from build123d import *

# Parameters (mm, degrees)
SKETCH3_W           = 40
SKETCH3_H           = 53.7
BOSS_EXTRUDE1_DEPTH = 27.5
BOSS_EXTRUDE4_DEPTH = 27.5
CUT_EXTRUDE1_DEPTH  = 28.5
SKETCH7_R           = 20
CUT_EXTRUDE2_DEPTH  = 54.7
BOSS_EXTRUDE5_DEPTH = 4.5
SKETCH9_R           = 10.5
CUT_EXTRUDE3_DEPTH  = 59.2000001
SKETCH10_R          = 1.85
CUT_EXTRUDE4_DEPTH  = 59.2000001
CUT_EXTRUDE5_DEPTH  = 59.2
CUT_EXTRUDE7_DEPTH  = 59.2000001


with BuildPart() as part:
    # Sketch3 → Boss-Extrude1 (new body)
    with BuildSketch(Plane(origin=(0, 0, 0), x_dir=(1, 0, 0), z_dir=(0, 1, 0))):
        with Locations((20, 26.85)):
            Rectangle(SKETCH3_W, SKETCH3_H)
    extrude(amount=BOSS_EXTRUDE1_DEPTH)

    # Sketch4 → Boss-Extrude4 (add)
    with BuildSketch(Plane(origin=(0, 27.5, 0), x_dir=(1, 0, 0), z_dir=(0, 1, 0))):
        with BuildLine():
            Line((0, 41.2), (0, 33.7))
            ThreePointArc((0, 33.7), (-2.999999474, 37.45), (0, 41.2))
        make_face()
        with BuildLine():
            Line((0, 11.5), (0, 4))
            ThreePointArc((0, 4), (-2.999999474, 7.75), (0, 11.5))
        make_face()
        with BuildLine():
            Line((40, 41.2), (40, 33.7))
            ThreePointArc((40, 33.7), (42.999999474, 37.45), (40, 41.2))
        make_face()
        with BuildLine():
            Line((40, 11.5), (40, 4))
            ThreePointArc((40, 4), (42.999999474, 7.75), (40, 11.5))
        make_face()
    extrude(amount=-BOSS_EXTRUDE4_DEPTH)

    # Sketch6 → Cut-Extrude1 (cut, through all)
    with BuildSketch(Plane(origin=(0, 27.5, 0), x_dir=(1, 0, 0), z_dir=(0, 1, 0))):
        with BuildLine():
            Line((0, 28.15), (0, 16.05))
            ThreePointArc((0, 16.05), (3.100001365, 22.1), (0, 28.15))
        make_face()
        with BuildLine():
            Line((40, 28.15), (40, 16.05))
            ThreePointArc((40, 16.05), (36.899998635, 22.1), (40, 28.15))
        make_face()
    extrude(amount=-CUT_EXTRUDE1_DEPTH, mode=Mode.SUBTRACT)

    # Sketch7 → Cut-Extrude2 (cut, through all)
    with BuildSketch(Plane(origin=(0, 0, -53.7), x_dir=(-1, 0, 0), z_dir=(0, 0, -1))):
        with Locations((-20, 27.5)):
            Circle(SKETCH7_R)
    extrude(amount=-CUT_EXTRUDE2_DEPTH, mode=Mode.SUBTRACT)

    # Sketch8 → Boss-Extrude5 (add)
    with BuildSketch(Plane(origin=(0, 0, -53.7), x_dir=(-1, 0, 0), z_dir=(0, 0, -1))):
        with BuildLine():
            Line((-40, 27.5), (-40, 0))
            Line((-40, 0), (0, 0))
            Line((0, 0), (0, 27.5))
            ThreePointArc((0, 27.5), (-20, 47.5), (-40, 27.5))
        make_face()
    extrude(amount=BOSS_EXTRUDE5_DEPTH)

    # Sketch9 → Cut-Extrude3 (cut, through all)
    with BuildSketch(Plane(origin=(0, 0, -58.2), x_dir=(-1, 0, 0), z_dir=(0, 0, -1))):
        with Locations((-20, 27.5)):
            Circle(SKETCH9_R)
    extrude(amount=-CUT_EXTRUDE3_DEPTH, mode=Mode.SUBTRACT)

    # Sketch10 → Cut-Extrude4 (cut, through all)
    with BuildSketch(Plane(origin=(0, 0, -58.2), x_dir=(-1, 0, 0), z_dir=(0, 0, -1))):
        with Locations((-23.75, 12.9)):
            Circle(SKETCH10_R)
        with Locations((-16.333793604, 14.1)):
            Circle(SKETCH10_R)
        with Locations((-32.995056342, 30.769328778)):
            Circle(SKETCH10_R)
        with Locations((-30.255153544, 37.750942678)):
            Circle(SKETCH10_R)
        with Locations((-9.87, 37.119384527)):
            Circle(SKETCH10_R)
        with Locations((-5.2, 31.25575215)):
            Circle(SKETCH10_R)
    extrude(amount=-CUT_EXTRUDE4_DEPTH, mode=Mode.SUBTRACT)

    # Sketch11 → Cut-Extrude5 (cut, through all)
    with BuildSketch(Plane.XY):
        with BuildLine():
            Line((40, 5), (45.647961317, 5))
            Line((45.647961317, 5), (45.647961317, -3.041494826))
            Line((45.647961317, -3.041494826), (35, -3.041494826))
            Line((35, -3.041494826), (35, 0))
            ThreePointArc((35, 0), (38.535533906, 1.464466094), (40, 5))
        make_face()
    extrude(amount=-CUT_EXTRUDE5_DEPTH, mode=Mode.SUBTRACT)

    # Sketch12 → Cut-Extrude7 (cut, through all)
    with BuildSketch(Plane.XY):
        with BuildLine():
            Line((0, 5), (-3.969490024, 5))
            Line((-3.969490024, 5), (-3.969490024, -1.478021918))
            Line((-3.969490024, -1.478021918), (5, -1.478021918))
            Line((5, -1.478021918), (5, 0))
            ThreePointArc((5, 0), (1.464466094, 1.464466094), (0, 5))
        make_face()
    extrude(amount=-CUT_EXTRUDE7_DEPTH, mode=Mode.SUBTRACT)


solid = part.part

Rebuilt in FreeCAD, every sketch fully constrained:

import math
import FreeCAD as App
import Part
import Sketcher

V = App.Vector


def add_polygon(sketch, points):
    """Adds a closed chain of lines whose ends are joined by coincident constraints."""
    first, n = sketch.GeometryCount, len(points)
    for a, b in zip(points, points[1:] + points[:1]):
        sketch.addGeometry(Part.LineSegment(App.Vector(*a, 0), App.Vector(*b, 0)), False)
    for i in range(n):
        sketch.addConstraint(Sketcher.Constraint("Coincident", first + i, 2, first + (i + 1) % n, 1))

doc = App.newDocument("Part")
body = doc.addObject("PartDesign::Body", "Body")

sketch1 = doc.addObject("Sketcher::SketchObject", "Sketch")
body.addObject(sketch1)
sketch1.AttachmentSupport = (doc.XZ_Plane, [""])
sketch1.MapMode = "FlatFace"
add_polygon(sketch1, [(0, -54), (0, 0), (40, 0), (40, -54)])
sketch1.addConstraint([
    Sketcher.Constraint("Vertical", 0),
    Sketcher.Constraint("Horizontal", 1),
    Sketcher.Constraint("Vertical", 2),
    Sketcher.Constraint("Horizontal", 3),
    Sketcher.Constraint("Coincident", 0, 2, -1, 1),
    Sketcher.Constraint("DistanceX", 1, 1, 1, 2, 40.0),
    Sketcher.Constraint("DistanceY", 0, 1, 0, 2, 53.7),
])
pad1 = doc.addObject("PartDesign::Pad", "Pad")
body.addObject(pad1)
pad1.Profile = sketch1
pad1.Length = 27.5
pad1.Reversed = True

sketch2 = doc.addObject("Sketcher::SketchObject", "Sketch001")
body.addObject(sketch2)
sketch2.AttachmentSupport = (doc.XZ_Plane, [""])
sketch2.MapMode = "FlatFace"
sketch2.AttachmentOffset = App.Placement(V(0, 0, -27.5), App.Rotation())
sketch2.addGeometry([
    Part.LineSegment(V(0, -33.7, 0), V(0, -41.2, 0)),
    Part.ArcOfCircle(Part.Circle(V(0.8, -37.5, 0), V(0, 0, 1), 3.8), math.radians(103), math.radians(257)),
    Part.LineSegment(V(0, -4, 0), V(0, -11.5, 0)),
    Part.ArcOfCircle(Part.Circle(V(0.8, -7.8, 0), V(0, 0, 1), 3.8), math.radians(103), math.radians(257)),
    Part.LineSegment(V(40, -41.2, 0), V(40, -33.7, 0)),
    Part.ArcOfCircle(Part.Circle(V(39.2, -37.5, 0), V(0, 0, 1), 3.8), math.radians(-77), math.radians(77)),
    Part.LineSegment(V(40, -11.5, 0), V(40, -4, 0)),
    Part.ArcOfCircle(Part.Circle(V(39.2, -7.8, 0), V(0, 0, 1), 3.8), math.radians(-77), math.radians(77)),
], False)
sketch2.addConstraint([
    Sketcher.Constraint("Coincident", 0, 1, 1, 1),
    Sketcher.Constraint("Coincident", 1, 2, 0, 2),
    Sketcher.Constraint("Coincident", 2, 1, 3, 1),
    Sketcher.Constraint("Coincident", 3, 2, 2, 2),
    Sketcher.Constraint("Coincident", 4, 1, 5, 1),
    Sketcher.Constraint("Coincident", 5, 2, 4, 2),
    Sketcher.Constraint("Coincident", 6, 1, 7, 1),
    Sketcher.Constraint("Coincident", 7, 2, 6, 2),
    Sketcher.Constraint("Vertical", 0),
    Sketcher.Constraint("Vertical", 2),
    Sketcher.Constraint("Vertical", 4),
    Sketcher.Constraint("Vertical", 6),
    Sketcher.Constraint("Equal", 1, 3),
    Sketcher.Constraint("Equal", 3, 5),
    Sketcher.Constraint("Equal", 5, 7),
    Sketcher.Constraint("PointOnObject", 0, 1, -2),
    Sketcher.Constraint("PointOnObject", 2, 1, -2),
    Sketcher.Constraint("Horizontal", 1, 3, 5, 3),
    Sketcher.Constraint("Horizontal", 3, 3, 7, 3),
    Sketcher.Constraint("Horizontal", 1, 2, 4, 1),
    Sketcher.Constraint("Horizontal", 3, 2, 6, 1),
    Sketcher.Constraint("Vertical", 1, 3, 3, 3),
    Sketcher.Constraint("Vertical", 5, 3, 7, 3),
    Sketcher.Constraint("DistanceY", 0, 2, 0, 1, 7.5),
    Sketcher.Constraint("DistanceY", 2, 1, -1, 1, 4.0),
    Sketcher.Constraint("DistanceX", -1, 1, 4, 1, 40.0),
    Sketcher.Constraint("DistanceY", 0, 1, -1, 1, 33.7),
    Sketcher.Constraint("Radius", 1, 3.84375),
])
pad2 = doc.addObject("PartDesign::Pad", "Pad001")
body.addObject(pad2)
pad2.Profile = sketch2
pad2.Length = 27.5

sketch3 = doc.addObject("Sketcher::SketchObject", "Sketch002")
body.addObject(sketch3)
sketch3.AttachmentSupport = (doc.XZ_Plane, [""])
sketch3.MapMode = "FlatFace"
sketch3.AttachmentOffset = App.Placement(V(0, 0, -27.5), App.Rotation())
sketch3.addGeometry([
    Part.LineSegment(V(0, -28, 0), V(0, -16, 0)),
    Part.ArcOfCircle(Part.Circle(V(-4, -22, 0), V(0, 0, 1), 7), math.radians(-54), math.radians(54)),
    Part.LineSegment(V(40, -16, 0), V(40, -28, 0)),
    Part.ArcOfCircle(Part.Circle(V(44, -22, 0), V(0, 0, 1), 7), math.radians(126), math.radians(234)),
], False)
sketch3.addConstraint([
    Sketcher.Constraint("Coincident", 0, 1, 1, 1),
    Sketcher.Constraint("Coincident", 1, 2, 0, 2),
    Sketcher.Constraint("Coincident", 2, 1, 3, 1),
    Sketcher.Constraint("Coincident", 3, 2, 2, 2),
    Sketcher.Constraint("Vertical", 0),
    Sketcher.Constraint("Vertical", 2),
    Sketcher.Constraint("Equal", 1, 3),
    Sketcher.Constraint("PointOnObject", 0, 1, -2),
    Sketcher.Constraint("Horizontal", 1, 3, 3, 3),
    Sketcher.Constraint("Horizontal", 1, 2, 2, 1),
    Sketcher.Constraint("DistanceY", 0, 1, 0, 2, 12.1),
    Sketcher.Constraint("DistanceX", -1, 1, 2, 1, 40.0),
    Sketcher.Constraint("DistanceY", 1, 3, -1, 1, 22.1),
    Sketcher.Constraint("Radius", 1, 7.453627),
])
pocket1 = doc.addObject("PartDesign::Pocket", "Pocket")
body.addObject(pocket1)
pocket1.Profile = sketch3
pocket1.Type = "ThroughAll"
pocket1.Reversed = True

sketch4 = doc.addObject("Sketcher::SketchObject", "Sketch003")
body.addObject(sketch4)
sketch4.AttachmentSupport = (doc.XY_Plane, [""])
sketch4.MapMode = "FlatFace"
sketch4.AttachmentOffset = App.Placement(V(0, 0, -53.7), App.Rotation())
sketch4.addGeometry(Part.Circle(V(20, 28, 0), V(0, 0, 1), 20), False)
sketch4.addConstraint([
    Sketcher.Constraint("Diameter", 0, 40.0),
    Sketcher.Constraint("DistanceX", -1, 1, 0, 3, 20.0),
    Sketcher.Constraint("DistanceY", -1, 1, 0, 3, 27.5),
])
pocket2 = doc.addObject("PartDesign::Pocket", "Pocket001")
body.addObject(pocket2)
pocket2.Profile = sketch4
pocket2.Type = "ThroughAll"
pocket2.Reversed = True

sketch5 = doc.addObject("Sketcher::SketchObject", "Sketch004")
body.addObject(sketch5)
sketch5.AttachmentSupport = (doc.XY_Plane, [""])
sketch5.MapMode = "FlatFace"
sketch5.AttachmentOffset = App.Placement(V(0, 0, -53.7), App.Rotation())
sketch5.addGeometry([
    Part.LineSegment(V(40, 28, 0), V(40, 0, 0)),
    Part.LineSegment(V(40, 0, 0), V(0, 0, 0)),
    Part.LineSegment(V(0, 0, 0), V(0, 28, 0)),
    Part.ArcOfCircle(Part.Circle(V(20, 28, 0), V(0, 0, 1), 20), math.radians(0), math.radians(180)),
], False)
sketch5.addConstraint([
    Sketcher.Constraint("Coincident", 0, 2, 1, 1),
    Sketcher.Constraint("Coincident", 1, 2, 2, 1),
    Sketcher.Constraint("Tangent", 2, 2, 3, 2),
    Sketcher.Constraint("Tangent", 3, 1, 0, 1),
    Sketcher.Constraint("Vertical", 0),
    Sketcher.Constraint("Horizontal", 1),
    Sketcher.Constraint("Vertical", 2),
    Sketcher.Constraint("Coincident", 1, 2, -1, 1),
    Sketcher.Constraint("Radius", 3, 20.0),
    Sketcher.Constraint("DistanceY", 0, 2, 0, 1, 27.5),
])
pad3 = doc.addObject("PartDesign::Pad", "Pad002")
body.addObject(pad3)
pad3.Profile = sketch5
pad3.Length = 4.5
pad3.Reversed = True

sketch6 = doc.addObject("Sketcher::SketchObject", "Sketch005")
body.addObject(sketch6)
sketch6.AttachmentSupport = (doc.XY_Plane, [""])
sketch6.MapMode = "FlatFace"
sketch6.AttachmentOffset = App.Placement(V(0, 0, -58.2), App.Rotation())
sketch6.addGeometry(Part.Circle(V(20, 28, 0), V(0, 0, 1), 10), False)
sketch6.addConstraint([
    Sketcher.Constraint("Diameter", 0, 21.0),
    Sketcher.Constraint("DistanceX", -1, 1, 0, 3, 20.0),
    Sketcher.Constraint("DistanceY", -1, 1, 0, 3, 27.5),
])
pocket3 = doc.addObject("PartDesign::Pocket", "Pocket002")
body.addObject(pocket3)
pocket3.Profile = sketch6
pocket3.Type = "ThroughAll"
pocket3.Reversed = True

sketch7 = doc.addObject("Sketcher::SketchObject", "Sketch006")
body.addObject(sketch7)
sketch7.AttachmentSupport = (doc.XY_Plane, [""])
sketch7.MapMode = "FlatFace"
sketch7.AttachmentOffset = App.Placement(V(0, 0, -58.2), App.Rotation())
sketch7.addGeometry([
    Part.Circle(V(23.8, 12.9, 0), V(0, 0, 1), 1.9),
    Part.Circle(V(16.3, 14.1, 0), V(0, 0, 1), 1.9),
    Part.Circle(V(33, 30.8, 0), V(0, 0, 1), 1.9),
    Part.Circle(V(30.3, 37.8, 0), V(0, 0, 1), 1.9),
    Part.Circle(V(9.9, 37.1, 0), V(0, 0, 1), 1.9),
    Part.Circle(V(5.2, 31.3, 0), V(0, 0, 1), 1.9),
], False)
sketch7.addConstraint([
    Sketcher.Constraint("Equal", 0, 1),
    Sketcher.Constraint("Equal", 1, 2),
    Sketcher.Constraint("Equal", 2, 3),
    Sketcher.Constraint("Equal", 3, 4),
    Sketcher.Constraint("Equal", 4, 5),
    Sketcher.Constraint("Diameter", 0, 3.7),
    Sketcher.Constraint("DistanceY", -1, 1, 0, 3, 12.9),
    Sketcher.Constraint("DistanceY", -1, 1, 1, 3, 14.1),
    Sketcher.Constraint("DistanceX", -1, 1, 5, 3, 5.2),
    Sketcher.Constraint("DistanceX", -1, 1, 0, 3, 23.75),
    Sketcher.Constraint("DistanceX", -1, 1, 4, 3, 9.87),
    Sketcher.Constraint("DistanceY", -1, 1, 2, 3, 30.769329),
    Sketcher.Constraint("DistanceX", 1, 3, 3, 3, 13.92136),
    Sketcher.Constraint("DistanceY", 4, 3, 3, 3, 0.631558),
    Sketcher.Constraint("DistanceY", 5, 3, 3, 3, 6.495191),
    Sketcher.Constraint("DistanceX", -1, 1, 1, 3, 16.333794),
    Sketcher.Constraint("DistanceX", -1, 1, 2, 3, 32.995056),
    Sketcher.Constraint("DistanceY", -1, 1, 3, 3, 37.750943),
])
pocket4 = doc.addObject("PartDesign::Pocket", "Pocket003")
body.addObject(pocket4)
pocket4.Profile = sketch7
pocket4.Type = "ThroughAll"
pocket4.Reversed = True

sketch8 = doc.addObject("Sketcher::SketchObject", "Sketch007")
body.addObject(sketch8)
sketch8.AttachmentSupport = (doc.XY_Plane, [""])
sketch8.MapMode = "FlatFace"
sketch8.addGeometry([
    Part.LineSegment(V(45.6, 5, 0), V(40, 5, 0)),
    Part.ArcOfCircle(Part.Circle(V(35, 5, 0), V(0, 0, 1), 5), math.radians(-90), math.radians(0)),
    Part.LineSegment(V(35, 0, 0), V(35, -3, 0)),
    Part.LineSegment(V(35, -3, 0), V(45.6, -3, 0)),
    Part.LineSegment(V(45.6, -3, 0), V(45.6, 5, 0)),
], False)
sketch8.addConstraint([
    Sketcher.Constraint("Coincident", 0, 2, 1, 2),
    Sketcher.Constraint("Coincident", 1, 1, 2, 1),
    Sketcher.Constraint("Coincident", 2, 2, 3, 1),
    Sketcher.Constraint("Coincident", 3, 2, 4, 1),
    Sketcher.Constraint("Coincident", 4, 2, 0, 1),
    Sketcher.Constraint("Horizontal", 0),
    Sketcher.Constraint("Vertical", 2),
    Sketcher.Constraint("Horizontal", 3),
    Sketcher.Constraint("Vertical", 4),
    Sketcher.Constraint("PointOnObject", 1, 1, -1),
    Sketcher.Constraint("Horizontal", 1, 3, 0, 2),
    Sketcher.Constraint("Radius", 1, 5.0),
    Sketcher.Constraint("DistanceX", -1, 1, 1, 3, 35.0),
    Sketcher.Constraint("DistanceX", -1, 1, 1, 1, 35.0),
    Sketcher.Constraint("DistanceX", 0, 2, 0, 1, 5.647961),
    Sketcher.Constraint("DistanceY", 2, 2, 2, 1, 3.041495),
])
pocket5 = doc.addObject("PartDesign::Pocket", "Pocket004")
body.addObject(pocket5)
pocket5.Profile = sketch8
pocket5.Type = "ThroughAll"

sketch9 = doc.addObject("Sketcher::SketchObject", "Sketch008")
body.addObject(sketch9)
sketch9.AttachmentSupport = (doc.XY_Plane, [""])
sketch9.MapMode = "FlatFace"
sketch9.addGeometry([
    Part.LineSegment(V(0, 5, 0), V(-4, 5, 0)),
    Part.LineSegment(V(-4, 5, 0), V(-4, -1.5, 0)),
    Part.LineSegment(V(-4, -1.5, 0), V(5, -1.5, 0)),
    Part.LineSegment(V(5, -1.5, 0), V(5, 0, 0)),
    Part.ArcOfCircle(Part.Circle(V(5, 5, 0), V(0, 0, 1), 5), math.radians(180), math.radians(270)),
], False)
sketch9.addConstraint([
    Sketcher.Constraint("Coincident", 0, 2, 1, 1),
    Sketcher.Constraint("Coincident", 1, 2, 2, 1),
    Sketcher.Constraint("Coincident", 2, 2, 3, 1),
    Sketcher.Constraint("Coincident", 3, 2, 4, 2),
    Sketcher.Constraint("Coincident", 4, 1, 0, 1),
    Sketcher.Constraint("Horizontal", 0),
    Sketcher.Constraint("Vertical", 1),
    Sketcher.Constraint("Horizontal", 2),
    Sketcher.Constraint("Vertical", 3),
    Sketcher.Constraint("PointOnObject", 3, 2, -1),
    Sketcher.Constraint("PointOnObject", 4, 1, -2),
    Sketcher.Constraint("Horizontal", 4, 3, 0, 2),
    Sketcher.Constraint("Vertical", 4, 3, 2, 2),
    Sketcher.Constraint("Radius", 4, 5.0),
    Sketcher.Constraint("DistanceX", 0, 2, 0, 1, 3.96949),
    Sketcher.Constraint("DistanceY", 1, 2, 1, 1, 6.478022),
])
pocket6 = doc.addObject("PartDesign::Pocket", "Pocket005")
body.addObject(pocket6)
pocket6.Profile = sketch9
pocket6.Type = "ThroughAll"

doc.recompute()
